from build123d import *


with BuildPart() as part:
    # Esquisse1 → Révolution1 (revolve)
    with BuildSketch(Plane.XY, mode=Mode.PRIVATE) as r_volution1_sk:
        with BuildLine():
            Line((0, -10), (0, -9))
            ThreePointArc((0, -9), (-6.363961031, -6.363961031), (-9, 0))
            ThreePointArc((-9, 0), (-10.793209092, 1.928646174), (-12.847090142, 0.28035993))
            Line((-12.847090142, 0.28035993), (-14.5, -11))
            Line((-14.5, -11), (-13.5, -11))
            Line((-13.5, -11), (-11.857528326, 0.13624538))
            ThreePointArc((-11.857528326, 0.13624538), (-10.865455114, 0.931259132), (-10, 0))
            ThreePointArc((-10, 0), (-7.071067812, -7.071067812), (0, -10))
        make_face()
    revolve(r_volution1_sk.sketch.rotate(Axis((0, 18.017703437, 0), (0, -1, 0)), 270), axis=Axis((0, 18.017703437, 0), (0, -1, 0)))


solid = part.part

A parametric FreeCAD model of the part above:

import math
import FreeCAD as App
import Part
import Sketcher
Q = App.Units.Quantity

doc = App.newDocument("Part")
params = doc.addObject("Spreadsheet::Sheet", "Params")
for row, (alias, value) in enumerate([
    ("sketch1_radius", "9 mm"),
    ("sketch1_radius2", "10 mm"),
    ("revolution_angle", "360 deg"),
], start=1):
    params.set(f"A{row}", alias)
    params.set(f"B{row}", "=" + value)
    params.setAlias(f"B{row}", alias)

body = doc.addObject("PartDesign::Body", "Body")

# Sketch on XY plane
sketch1 = body.newObject("Sketcher::SketchObject", "Sketch")
sketch1.AttachmentSupport = (doc.getObject("XY_Plane"), [""])
sketch1.MapMode = "FlatFace"
sketch1.addGeometry([
    Part.LineSegment(App.Vector(0, -10, 0), App.Vector(0, -9, 0)),  # 0
    Part.ArcOfCircle(Part.Circle(App.Vector(0, 0, 0), App.Vector(0, 0, 1), 9), math.radians(180), math.radians(270)),  # 1
    Part.ArcOfCircle(Part.Circle(App.Vector(-10.9, 0, 0), App.Vector(0, 0, 1), 1.9), math.radians(0), math.radians(172)),  # 2
    Part.LineSegment(App.Vector(-12.8, 0.3, 0), App.Vector(-14.5, -11, 0)),  # 3
    Part.LineSegment(App.Vector(-14.5, -11, 0), App.Vector(-13.5, -11, 0)),  # 4
    Part.LineSegment(App.Vector(-13.5, -11, 0), App.Vector(-11.9, 0.1, 0)),  # 5
    Part.ArcOfCircle(Part.Circle(App.Vector(-10.9, 0, 0), App.Vector(0, 0, 1), 0.9), math.radians(0), math.radians(172)),  # 6
    Part.ArcOfCircle(Part.Circle(App.Vector(0, 0, 0), App.Vector(0, 0, 1), 10), math.radians(180), math.radians(270)),  # 7
], False)
sketch1.addConstraint([
    Sketcher.Constraint("Coincident", 0, 2, 1, 2),
    Sketcher.Constraint("Tangent", 1, 1, 2, 1),
    Sketcher.Constraint("Tangent", 2, 2, 3, 1),
    Sketcher.Constraint("Coincident", 3, 2, 4, 1),
    Sketcher.Constraint("Coincident", 4, 2, 5, 1),
    Sketcher.Constraint("Tangent", 5, 2, 6, 2),
    Sketcher.Constraint("Tangent", 6, 1, 7, 1),
    Sketcher.Constraint("Coincident", 7, 2, 0, 1),
    Sketcher.Constraint("Vertical", 0),
    Sketcher.Constraint("Horizontal", 4),
    Sketcher.Constraint("Coincident", 1, 3, -1, 1),
    Sketcher.Constraint("Coincident", 7, 3, -1, 1),
    Sketcher.Constraint("Coincident", 6, 3, 2, 3),
    Sketcher.Constraint("PointOnObject", 2, 3, -1),
    Sketcher.Constraint("PointOnObject", 0, 2, -2),
    Sketcher.Constraint("Equal", 4, 0),
    Sketcher.Constraint("Radius", 1, 9.0),
    Sketcher.Constraint("Radius", 7, 10.0),
    Sketcher.Constraint("DistanceY", 3, 2, -1, 1, 11.0),
    Sketcher.Constraint("DistanceX", 3, 2, -1, 1, 14.5),
    Sketcher.Constraint("Angle", 5, Q("81.61 deg")),
])
sketch1.setExpression("Constraints[16]", "Params.sketch1_radius")
sketch1.setExpression("Constraints[17]", "Params.sketch1_radius2")
revolution = body.newObject("PartDesign::Revolution", "Revolution")
revolution.Profile = sketch1
revolution.ReferenceAxis = (sketch1, ["V_Axis"])
revolution.setExpression("Angle", "Params.revolution_angle")

doc.recompute()
